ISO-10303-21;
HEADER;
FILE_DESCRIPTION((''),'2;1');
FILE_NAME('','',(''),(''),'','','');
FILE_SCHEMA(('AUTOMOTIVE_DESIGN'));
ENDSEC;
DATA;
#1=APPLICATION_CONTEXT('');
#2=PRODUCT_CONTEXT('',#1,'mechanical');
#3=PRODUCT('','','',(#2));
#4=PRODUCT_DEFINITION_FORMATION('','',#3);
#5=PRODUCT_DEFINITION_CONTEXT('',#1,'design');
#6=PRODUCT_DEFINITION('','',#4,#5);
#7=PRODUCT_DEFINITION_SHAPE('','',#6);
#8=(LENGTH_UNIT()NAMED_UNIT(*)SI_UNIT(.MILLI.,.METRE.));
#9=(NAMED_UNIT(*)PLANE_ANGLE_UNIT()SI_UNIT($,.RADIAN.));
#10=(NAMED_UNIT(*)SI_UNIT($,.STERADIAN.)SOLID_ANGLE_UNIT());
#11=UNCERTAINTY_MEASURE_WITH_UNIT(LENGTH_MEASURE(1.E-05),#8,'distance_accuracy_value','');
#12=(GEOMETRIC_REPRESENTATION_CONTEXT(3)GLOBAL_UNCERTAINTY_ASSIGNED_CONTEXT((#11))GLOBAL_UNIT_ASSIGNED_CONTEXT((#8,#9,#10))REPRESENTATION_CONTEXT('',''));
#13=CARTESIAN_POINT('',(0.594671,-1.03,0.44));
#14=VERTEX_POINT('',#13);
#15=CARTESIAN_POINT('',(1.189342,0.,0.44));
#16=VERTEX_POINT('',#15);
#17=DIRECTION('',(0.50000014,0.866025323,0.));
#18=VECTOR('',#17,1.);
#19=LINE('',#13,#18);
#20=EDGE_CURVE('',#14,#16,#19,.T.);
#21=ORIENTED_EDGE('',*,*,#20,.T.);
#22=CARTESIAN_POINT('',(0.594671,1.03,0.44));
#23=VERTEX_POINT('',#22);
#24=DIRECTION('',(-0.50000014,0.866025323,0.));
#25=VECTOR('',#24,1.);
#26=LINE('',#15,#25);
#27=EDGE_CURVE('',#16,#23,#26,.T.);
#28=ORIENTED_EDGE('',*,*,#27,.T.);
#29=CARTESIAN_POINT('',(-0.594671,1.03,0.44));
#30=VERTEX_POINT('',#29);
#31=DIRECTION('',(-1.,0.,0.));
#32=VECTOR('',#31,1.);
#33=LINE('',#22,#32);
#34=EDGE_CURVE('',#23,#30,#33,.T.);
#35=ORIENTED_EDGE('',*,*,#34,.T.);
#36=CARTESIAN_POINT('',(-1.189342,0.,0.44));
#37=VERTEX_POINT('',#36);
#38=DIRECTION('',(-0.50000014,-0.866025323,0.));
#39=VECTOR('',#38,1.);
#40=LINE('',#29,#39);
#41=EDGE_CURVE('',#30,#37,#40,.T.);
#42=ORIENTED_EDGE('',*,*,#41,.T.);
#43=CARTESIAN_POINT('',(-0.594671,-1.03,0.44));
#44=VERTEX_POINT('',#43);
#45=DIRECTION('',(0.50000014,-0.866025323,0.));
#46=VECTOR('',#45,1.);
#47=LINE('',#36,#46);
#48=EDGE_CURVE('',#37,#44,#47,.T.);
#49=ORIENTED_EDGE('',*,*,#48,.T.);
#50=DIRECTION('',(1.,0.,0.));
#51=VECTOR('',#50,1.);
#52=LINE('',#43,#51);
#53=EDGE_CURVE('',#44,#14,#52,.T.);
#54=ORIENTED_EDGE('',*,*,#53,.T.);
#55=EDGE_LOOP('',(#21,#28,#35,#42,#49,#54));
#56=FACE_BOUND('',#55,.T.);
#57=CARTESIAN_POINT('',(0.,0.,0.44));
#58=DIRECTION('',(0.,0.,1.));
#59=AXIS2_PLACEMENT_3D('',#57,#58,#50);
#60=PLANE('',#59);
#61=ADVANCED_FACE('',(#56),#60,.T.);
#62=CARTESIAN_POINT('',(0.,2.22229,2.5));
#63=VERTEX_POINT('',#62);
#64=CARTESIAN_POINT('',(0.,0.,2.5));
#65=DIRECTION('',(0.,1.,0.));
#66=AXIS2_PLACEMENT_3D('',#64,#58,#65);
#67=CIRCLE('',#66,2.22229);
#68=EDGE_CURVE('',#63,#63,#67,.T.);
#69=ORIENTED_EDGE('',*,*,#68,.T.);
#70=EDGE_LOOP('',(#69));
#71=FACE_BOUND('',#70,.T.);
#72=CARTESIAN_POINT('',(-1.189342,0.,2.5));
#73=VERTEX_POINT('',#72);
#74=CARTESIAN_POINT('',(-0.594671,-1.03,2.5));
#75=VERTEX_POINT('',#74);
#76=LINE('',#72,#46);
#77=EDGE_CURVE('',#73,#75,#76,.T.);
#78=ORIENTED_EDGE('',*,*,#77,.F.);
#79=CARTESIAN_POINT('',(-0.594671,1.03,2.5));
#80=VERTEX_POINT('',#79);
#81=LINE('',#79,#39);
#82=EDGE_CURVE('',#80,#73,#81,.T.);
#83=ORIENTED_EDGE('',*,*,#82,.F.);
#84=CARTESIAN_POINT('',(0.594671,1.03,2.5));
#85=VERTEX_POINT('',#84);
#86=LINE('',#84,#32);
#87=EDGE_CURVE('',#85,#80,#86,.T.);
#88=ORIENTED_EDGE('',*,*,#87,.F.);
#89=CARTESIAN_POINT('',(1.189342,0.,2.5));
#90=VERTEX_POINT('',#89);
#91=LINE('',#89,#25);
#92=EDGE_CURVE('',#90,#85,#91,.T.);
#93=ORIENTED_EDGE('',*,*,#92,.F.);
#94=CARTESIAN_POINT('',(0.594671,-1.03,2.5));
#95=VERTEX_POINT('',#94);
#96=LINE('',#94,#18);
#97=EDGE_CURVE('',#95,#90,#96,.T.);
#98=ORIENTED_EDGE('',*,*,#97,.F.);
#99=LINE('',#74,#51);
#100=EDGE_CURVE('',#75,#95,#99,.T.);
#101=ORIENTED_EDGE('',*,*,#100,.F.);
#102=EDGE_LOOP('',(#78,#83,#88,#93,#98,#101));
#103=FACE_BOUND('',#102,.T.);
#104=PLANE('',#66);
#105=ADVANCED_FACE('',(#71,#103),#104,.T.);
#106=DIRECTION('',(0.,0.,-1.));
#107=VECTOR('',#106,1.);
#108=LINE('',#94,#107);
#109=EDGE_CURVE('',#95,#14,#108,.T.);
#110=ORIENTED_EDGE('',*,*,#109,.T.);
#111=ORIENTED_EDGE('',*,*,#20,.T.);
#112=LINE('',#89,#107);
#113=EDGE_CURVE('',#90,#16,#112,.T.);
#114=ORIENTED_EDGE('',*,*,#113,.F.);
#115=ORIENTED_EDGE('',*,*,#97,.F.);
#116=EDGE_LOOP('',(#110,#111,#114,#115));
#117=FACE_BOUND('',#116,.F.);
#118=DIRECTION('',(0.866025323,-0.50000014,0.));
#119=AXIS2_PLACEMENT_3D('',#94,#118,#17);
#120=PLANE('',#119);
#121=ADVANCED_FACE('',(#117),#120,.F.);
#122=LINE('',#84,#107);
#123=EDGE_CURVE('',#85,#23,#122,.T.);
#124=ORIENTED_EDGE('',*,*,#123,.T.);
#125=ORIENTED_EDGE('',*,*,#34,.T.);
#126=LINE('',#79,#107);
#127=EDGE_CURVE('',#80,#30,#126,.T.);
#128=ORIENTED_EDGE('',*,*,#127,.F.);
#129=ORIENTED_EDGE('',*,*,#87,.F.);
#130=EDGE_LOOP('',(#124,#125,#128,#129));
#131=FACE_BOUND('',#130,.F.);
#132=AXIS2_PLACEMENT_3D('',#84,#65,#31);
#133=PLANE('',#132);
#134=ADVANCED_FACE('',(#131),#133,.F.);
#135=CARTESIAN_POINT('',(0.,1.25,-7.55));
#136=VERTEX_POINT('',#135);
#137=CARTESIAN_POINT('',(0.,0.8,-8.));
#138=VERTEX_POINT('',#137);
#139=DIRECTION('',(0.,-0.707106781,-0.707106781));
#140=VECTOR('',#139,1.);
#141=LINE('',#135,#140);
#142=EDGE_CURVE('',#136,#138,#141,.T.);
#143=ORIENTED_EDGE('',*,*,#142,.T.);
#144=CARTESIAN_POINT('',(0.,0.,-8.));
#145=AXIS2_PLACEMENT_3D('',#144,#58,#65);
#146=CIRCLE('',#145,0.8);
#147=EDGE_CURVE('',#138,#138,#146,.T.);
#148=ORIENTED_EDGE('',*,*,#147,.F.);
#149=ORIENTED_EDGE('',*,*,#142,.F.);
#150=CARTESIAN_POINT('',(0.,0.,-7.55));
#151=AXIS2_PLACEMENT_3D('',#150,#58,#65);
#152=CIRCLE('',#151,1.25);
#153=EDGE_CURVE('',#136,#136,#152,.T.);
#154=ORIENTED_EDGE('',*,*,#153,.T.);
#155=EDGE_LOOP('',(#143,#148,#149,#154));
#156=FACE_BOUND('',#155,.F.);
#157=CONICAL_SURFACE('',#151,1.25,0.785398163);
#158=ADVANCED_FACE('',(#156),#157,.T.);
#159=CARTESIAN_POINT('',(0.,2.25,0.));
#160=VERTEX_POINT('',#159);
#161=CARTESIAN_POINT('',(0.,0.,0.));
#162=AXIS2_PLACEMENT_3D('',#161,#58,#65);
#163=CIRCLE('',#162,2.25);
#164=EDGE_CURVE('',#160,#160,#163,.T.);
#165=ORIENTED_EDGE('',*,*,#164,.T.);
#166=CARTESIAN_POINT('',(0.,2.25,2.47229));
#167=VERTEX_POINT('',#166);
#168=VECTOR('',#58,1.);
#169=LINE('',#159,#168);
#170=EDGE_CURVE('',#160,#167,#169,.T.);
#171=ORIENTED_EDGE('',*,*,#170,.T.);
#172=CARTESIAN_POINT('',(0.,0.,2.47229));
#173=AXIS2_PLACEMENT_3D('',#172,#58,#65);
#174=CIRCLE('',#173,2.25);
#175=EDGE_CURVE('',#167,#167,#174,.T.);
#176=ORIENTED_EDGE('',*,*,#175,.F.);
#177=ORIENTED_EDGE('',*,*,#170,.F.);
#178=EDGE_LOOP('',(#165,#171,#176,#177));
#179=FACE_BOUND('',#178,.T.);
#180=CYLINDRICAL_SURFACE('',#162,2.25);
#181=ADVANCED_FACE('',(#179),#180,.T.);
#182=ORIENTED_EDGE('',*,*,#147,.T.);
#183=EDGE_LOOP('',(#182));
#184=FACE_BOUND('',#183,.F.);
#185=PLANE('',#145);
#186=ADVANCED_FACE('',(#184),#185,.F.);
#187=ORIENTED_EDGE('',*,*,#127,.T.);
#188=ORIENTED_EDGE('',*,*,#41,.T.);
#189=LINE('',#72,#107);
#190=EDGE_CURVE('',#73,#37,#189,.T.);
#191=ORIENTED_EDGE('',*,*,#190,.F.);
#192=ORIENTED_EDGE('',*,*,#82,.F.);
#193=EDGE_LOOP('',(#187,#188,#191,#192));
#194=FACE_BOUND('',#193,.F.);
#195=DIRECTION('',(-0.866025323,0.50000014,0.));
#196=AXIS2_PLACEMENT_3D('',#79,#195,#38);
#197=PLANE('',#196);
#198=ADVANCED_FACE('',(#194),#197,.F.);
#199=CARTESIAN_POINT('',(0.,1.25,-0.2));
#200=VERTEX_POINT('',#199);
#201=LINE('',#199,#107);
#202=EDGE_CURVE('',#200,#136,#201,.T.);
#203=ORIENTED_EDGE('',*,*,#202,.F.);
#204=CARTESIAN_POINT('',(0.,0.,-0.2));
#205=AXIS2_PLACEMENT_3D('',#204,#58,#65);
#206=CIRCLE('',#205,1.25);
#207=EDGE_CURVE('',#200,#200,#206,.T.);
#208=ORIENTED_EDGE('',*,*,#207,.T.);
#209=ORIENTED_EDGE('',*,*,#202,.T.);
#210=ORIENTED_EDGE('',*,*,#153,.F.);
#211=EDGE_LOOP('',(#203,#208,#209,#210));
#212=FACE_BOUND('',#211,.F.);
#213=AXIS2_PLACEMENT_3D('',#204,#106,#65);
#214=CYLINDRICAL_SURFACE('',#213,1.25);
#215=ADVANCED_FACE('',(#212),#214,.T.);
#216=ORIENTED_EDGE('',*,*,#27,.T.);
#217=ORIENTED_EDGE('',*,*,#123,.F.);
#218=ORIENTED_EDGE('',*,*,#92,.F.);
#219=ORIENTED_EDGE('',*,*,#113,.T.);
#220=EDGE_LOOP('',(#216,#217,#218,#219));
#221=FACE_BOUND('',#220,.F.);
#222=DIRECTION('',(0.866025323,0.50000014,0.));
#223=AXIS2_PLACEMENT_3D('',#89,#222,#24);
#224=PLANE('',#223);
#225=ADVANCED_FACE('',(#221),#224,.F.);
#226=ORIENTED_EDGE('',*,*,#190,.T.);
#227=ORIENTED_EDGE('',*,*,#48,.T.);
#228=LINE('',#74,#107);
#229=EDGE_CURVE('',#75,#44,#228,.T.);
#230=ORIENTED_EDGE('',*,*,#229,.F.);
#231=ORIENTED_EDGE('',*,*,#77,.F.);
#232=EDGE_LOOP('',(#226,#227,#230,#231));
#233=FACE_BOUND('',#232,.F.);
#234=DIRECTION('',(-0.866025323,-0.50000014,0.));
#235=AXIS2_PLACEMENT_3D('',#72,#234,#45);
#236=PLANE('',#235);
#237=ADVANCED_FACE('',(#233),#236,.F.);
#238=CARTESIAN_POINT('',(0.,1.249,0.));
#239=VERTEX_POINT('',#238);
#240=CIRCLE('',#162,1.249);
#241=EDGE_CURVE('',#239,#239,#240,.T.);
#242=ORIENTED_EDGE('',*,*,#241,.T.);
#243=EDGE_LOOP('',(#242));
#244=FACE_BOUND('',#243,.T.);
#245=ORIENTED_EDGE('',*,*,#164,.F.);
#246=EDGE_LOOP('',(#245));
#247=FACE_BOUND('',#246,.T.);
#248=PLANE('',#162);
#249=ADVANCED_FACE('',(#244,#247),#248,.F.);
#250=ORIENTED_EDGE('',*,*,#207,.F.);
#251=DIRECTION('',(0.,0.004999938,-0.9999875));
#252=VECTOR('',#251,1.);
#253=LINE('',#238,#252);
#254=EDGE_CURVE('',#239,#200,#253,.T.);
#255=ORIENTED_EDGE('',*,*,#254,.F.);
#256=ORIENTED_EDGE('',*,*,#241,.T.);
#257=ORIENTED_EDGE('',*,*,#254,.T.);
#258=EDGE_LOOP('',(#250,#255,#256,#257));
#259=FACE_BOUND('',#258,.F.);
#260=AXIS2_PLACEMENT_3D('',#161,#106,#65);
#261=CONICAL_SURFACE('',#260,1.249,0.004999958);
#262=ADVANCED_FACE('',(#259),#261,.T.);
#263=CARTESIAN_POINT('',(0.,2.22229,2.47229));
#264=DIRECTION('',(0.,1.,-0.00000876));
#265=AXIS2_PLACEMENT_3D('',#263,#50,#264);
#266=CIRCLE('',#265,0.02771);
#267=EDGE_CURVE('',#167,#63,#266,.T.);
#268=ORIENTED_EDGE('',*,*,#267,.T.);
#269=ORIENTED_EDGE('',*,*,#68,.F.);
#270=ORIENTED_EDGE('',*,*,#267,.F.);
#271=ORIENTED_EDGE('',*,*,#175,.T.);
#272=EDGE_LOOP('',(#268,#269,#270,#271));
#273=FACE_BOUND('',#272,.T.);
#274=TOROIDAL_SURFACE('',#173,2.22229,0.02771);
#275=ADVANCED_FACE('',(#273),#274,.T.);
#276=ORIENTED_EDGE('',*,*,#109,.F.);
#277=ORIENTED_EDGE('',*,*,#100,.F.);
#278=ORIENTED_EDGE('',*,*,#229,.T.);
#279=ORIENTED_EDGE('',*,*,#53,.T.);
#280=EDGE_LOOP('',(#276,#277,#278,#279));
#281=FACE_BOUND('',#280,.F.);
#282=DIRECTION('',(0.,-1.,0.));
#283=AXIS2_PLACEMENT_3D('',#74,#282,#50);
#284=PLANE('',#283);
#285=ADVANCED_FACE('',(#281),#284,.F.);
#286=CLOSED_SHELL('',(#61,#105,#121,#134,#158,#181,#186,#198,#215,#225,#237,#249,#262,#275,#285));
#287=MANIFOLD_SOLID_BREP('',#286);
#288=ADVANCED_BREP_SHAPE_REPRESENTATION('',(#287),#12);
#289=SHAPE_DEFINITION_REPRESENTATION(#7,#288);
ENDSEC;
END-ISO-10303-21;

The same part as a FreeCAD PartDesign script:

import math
import FreeCAD as App
import Part
import Sketcher
Q = App.Units.Quantity


def add_polygon(sketch, points):
    """Adds a closed chain of lines whose ends are joined by coincident constraints."""
    first, n = sketch.GeometryCount, len(points)
    for a, b in zip(points, points[1:] + points[:1]):
        sketch.addGeometry(Part.LineSegment(App.Vector(*a, 0), App.Vector(*b, 0)), False)
    for i in range(n):
        sketch.addConstraint(Sketcher.Constraint("Coincident", first + i, 2, first + (i + 1) % n, 1))

doc = App.newDocument("Part")
body = doc.addObject("PartDesign::Body", "Body")

# Sketch on YZ plane
sketch1 = body.newObject("Sketcher::SketchObject", "Sketch")
sketch1.AttachmentSupport = (doc.getObject("YZ_Plane"), [""])
sketch1.MapMode = "FlatFace"
sketch1.addGeometry([
    Part.LineSegment(App.Vector(1.249, 0, 0), App.Vector(2.25, 0, 0)),  # 0
    Part.LineSegment(App.Vector(2.25, 0, 0), App.Vector(2.25, 2.472, 0)),  # 1
    Part.ArcOfCircle(Part.Circle(App.Vector(2.222, 2.472, 0), App.Vector(0, 0, 1), 0.028), math.radians(0), math.radians(90)),  # 2
    Part.LineSegment(App.Vector(2.222, 2.5, 0), App.Vector(0, 2.5, 0)),  # 3
    Part.LineSegment(App.Vector(0, 2.5, 0), App.Vector(0, -8, 0)),  # 4
    Part.LineSegment(App.Vector(0, -8, 0), App.Vector(0.8, -8, 0)),  # 5
    Part.LineSegment(App.Vector(0.8, -8, 0), App.Vector(1.25, -7.55, 0)),  # 6
    Part.LineSegment(App.Vector(1.25, -7.55, 0), App.Vector(1.25, -0.2, 0)),  # 7
    Part.LineSegment(App.Vector(1.25, -0.2, 0), App.Vector(1.249, 0, 0)),  # 8
], False)
sketch1.addConstraint([
    Sketcher.Constraint("Coincident", 0, 2, 1, 1),
    Sketcher.Constraint("Coincident", 1, 2, 2, 1),
    Sketcher.Constraint("Coincident", 2, 2, 3, 1),
    Sketcher.Constraint("Coincident", 3, 2, 4, 1),
    Sketcher.Constraint("Coincident", 4, 2, 5, 1),
    Sketcher.Constraint("Coincident", 5, 2, 6, 1),
    Sketcher.Constraint("Coincident", 6, 2, 7, 1),
    Sketcher.Constraint("Coincident", 7, 2, 8, 1),
    Sketcher.Constraint("Coincident", 8, 2, 0, 1),
    Sketcher.Constraint("Horizontal", 0),
    Sketcher.Constraint("Vertical", 1),
    Sketcher.Constraint("Horizontal", 3),
    Sketcher.Constraint("Vertical", 4),
    Sketcher.Constraint("Horizontal", 5),
    Sketcher.Constraint("Vertical", 7),
    Sketcher.Constraint("PointOnObject", 0, 2, -1),
    Sketcher.Constraint("PointOnObject", 3, 2, -2),
    Sketcher.Constraint("Horizontal", 2, 3, 1, 2),
    Sketcher.Constraint("Angle", 6, Q("45 deg")),
    Sketcher.Constraint("DistanceX", 5, 1, 5, 2, 0.8),
    Sketcher.Constraint("DistanceY", 4, 2, 4, 1, 10.5),
    Sketcher.Constraint("DistanceY", 4, 2, -1, 1, 8.0),
    Sketcher.Constraint("DistanceX", 6, 2, 0, 2, 1.0),
    Sketcher.Constraint("DistanceY", 7, 1, 7, 2, 7.35),
    Sketcher.Constraint("DistanceY", 7, 2, -1, 1, 0.2),
    Sketcher.Constraint("DistanceX", 0, 1, 0, 2, 1.001),
    Sketcher.Constraint("Radius", 2, 0.02771),
    Sketcher.Constraint("DistanceX", 3, 2, 3, 1, 2.22229),
])
revolution = body.newObject("PartDesign::Revolution", "Revolution")
revolution.Profile = sketch1
revolution.ReferenceAxis = (sketch1, ["V_Axis"])
revolution.Angle = 360

# Sketch on XY plane
sketch2 = body.newObject("Sketcher::SketchObject", "Sketch001")
sketch2.AttachmentSupport = (doc.getObject("XY_Plane"), [""])
sketch2.MapMode = "FlatFace"
sketch2.AttachmentOffset = App.Placement(App.Vector(0, 0, 2.5), App.Rotation())
add_polygon(sketch2, [(1.2, 0), (0.6, 1), (-0.6, 1), (-1.2, 0), (-0.6, -1), (0.6, -1)])  # lines 0-5
sketch2.addConstraint([
    Sketcher.Constraint("Horizontal", 1),
    Sketcher.Constraint("Horizontal", 4),
    Sketcher.Constraint("Symmetric", 0, 2, 3, 2, -1, 1),
    Sketcher.Constraint("Symmetric", 2, 2, 5, 2, -1, 1),
    Sketcher.Constraint("PointOnObject", 2, 2, -1),
    Sketcher.Constraint("Parallel", 2, 5),
    Sketcher.Constraint("Vertical", 1, 2, 3, 2),
    Sketcher.Constraint("Angle", 0, Q("120.000009 deg")),
    Sketcher.Constraint("DistanceY", -1, 1, 0, 2, 1.03),
    Sketcher.Constraint("DistanceX", 1, 2, 1, 1, 1.189342),
])
pocket1 = body.newObject("PartDesign::Pocket", "Pocket")
pocket1.Profile = sketch2
pocket1.Length = 2.06

doc.recompute()
